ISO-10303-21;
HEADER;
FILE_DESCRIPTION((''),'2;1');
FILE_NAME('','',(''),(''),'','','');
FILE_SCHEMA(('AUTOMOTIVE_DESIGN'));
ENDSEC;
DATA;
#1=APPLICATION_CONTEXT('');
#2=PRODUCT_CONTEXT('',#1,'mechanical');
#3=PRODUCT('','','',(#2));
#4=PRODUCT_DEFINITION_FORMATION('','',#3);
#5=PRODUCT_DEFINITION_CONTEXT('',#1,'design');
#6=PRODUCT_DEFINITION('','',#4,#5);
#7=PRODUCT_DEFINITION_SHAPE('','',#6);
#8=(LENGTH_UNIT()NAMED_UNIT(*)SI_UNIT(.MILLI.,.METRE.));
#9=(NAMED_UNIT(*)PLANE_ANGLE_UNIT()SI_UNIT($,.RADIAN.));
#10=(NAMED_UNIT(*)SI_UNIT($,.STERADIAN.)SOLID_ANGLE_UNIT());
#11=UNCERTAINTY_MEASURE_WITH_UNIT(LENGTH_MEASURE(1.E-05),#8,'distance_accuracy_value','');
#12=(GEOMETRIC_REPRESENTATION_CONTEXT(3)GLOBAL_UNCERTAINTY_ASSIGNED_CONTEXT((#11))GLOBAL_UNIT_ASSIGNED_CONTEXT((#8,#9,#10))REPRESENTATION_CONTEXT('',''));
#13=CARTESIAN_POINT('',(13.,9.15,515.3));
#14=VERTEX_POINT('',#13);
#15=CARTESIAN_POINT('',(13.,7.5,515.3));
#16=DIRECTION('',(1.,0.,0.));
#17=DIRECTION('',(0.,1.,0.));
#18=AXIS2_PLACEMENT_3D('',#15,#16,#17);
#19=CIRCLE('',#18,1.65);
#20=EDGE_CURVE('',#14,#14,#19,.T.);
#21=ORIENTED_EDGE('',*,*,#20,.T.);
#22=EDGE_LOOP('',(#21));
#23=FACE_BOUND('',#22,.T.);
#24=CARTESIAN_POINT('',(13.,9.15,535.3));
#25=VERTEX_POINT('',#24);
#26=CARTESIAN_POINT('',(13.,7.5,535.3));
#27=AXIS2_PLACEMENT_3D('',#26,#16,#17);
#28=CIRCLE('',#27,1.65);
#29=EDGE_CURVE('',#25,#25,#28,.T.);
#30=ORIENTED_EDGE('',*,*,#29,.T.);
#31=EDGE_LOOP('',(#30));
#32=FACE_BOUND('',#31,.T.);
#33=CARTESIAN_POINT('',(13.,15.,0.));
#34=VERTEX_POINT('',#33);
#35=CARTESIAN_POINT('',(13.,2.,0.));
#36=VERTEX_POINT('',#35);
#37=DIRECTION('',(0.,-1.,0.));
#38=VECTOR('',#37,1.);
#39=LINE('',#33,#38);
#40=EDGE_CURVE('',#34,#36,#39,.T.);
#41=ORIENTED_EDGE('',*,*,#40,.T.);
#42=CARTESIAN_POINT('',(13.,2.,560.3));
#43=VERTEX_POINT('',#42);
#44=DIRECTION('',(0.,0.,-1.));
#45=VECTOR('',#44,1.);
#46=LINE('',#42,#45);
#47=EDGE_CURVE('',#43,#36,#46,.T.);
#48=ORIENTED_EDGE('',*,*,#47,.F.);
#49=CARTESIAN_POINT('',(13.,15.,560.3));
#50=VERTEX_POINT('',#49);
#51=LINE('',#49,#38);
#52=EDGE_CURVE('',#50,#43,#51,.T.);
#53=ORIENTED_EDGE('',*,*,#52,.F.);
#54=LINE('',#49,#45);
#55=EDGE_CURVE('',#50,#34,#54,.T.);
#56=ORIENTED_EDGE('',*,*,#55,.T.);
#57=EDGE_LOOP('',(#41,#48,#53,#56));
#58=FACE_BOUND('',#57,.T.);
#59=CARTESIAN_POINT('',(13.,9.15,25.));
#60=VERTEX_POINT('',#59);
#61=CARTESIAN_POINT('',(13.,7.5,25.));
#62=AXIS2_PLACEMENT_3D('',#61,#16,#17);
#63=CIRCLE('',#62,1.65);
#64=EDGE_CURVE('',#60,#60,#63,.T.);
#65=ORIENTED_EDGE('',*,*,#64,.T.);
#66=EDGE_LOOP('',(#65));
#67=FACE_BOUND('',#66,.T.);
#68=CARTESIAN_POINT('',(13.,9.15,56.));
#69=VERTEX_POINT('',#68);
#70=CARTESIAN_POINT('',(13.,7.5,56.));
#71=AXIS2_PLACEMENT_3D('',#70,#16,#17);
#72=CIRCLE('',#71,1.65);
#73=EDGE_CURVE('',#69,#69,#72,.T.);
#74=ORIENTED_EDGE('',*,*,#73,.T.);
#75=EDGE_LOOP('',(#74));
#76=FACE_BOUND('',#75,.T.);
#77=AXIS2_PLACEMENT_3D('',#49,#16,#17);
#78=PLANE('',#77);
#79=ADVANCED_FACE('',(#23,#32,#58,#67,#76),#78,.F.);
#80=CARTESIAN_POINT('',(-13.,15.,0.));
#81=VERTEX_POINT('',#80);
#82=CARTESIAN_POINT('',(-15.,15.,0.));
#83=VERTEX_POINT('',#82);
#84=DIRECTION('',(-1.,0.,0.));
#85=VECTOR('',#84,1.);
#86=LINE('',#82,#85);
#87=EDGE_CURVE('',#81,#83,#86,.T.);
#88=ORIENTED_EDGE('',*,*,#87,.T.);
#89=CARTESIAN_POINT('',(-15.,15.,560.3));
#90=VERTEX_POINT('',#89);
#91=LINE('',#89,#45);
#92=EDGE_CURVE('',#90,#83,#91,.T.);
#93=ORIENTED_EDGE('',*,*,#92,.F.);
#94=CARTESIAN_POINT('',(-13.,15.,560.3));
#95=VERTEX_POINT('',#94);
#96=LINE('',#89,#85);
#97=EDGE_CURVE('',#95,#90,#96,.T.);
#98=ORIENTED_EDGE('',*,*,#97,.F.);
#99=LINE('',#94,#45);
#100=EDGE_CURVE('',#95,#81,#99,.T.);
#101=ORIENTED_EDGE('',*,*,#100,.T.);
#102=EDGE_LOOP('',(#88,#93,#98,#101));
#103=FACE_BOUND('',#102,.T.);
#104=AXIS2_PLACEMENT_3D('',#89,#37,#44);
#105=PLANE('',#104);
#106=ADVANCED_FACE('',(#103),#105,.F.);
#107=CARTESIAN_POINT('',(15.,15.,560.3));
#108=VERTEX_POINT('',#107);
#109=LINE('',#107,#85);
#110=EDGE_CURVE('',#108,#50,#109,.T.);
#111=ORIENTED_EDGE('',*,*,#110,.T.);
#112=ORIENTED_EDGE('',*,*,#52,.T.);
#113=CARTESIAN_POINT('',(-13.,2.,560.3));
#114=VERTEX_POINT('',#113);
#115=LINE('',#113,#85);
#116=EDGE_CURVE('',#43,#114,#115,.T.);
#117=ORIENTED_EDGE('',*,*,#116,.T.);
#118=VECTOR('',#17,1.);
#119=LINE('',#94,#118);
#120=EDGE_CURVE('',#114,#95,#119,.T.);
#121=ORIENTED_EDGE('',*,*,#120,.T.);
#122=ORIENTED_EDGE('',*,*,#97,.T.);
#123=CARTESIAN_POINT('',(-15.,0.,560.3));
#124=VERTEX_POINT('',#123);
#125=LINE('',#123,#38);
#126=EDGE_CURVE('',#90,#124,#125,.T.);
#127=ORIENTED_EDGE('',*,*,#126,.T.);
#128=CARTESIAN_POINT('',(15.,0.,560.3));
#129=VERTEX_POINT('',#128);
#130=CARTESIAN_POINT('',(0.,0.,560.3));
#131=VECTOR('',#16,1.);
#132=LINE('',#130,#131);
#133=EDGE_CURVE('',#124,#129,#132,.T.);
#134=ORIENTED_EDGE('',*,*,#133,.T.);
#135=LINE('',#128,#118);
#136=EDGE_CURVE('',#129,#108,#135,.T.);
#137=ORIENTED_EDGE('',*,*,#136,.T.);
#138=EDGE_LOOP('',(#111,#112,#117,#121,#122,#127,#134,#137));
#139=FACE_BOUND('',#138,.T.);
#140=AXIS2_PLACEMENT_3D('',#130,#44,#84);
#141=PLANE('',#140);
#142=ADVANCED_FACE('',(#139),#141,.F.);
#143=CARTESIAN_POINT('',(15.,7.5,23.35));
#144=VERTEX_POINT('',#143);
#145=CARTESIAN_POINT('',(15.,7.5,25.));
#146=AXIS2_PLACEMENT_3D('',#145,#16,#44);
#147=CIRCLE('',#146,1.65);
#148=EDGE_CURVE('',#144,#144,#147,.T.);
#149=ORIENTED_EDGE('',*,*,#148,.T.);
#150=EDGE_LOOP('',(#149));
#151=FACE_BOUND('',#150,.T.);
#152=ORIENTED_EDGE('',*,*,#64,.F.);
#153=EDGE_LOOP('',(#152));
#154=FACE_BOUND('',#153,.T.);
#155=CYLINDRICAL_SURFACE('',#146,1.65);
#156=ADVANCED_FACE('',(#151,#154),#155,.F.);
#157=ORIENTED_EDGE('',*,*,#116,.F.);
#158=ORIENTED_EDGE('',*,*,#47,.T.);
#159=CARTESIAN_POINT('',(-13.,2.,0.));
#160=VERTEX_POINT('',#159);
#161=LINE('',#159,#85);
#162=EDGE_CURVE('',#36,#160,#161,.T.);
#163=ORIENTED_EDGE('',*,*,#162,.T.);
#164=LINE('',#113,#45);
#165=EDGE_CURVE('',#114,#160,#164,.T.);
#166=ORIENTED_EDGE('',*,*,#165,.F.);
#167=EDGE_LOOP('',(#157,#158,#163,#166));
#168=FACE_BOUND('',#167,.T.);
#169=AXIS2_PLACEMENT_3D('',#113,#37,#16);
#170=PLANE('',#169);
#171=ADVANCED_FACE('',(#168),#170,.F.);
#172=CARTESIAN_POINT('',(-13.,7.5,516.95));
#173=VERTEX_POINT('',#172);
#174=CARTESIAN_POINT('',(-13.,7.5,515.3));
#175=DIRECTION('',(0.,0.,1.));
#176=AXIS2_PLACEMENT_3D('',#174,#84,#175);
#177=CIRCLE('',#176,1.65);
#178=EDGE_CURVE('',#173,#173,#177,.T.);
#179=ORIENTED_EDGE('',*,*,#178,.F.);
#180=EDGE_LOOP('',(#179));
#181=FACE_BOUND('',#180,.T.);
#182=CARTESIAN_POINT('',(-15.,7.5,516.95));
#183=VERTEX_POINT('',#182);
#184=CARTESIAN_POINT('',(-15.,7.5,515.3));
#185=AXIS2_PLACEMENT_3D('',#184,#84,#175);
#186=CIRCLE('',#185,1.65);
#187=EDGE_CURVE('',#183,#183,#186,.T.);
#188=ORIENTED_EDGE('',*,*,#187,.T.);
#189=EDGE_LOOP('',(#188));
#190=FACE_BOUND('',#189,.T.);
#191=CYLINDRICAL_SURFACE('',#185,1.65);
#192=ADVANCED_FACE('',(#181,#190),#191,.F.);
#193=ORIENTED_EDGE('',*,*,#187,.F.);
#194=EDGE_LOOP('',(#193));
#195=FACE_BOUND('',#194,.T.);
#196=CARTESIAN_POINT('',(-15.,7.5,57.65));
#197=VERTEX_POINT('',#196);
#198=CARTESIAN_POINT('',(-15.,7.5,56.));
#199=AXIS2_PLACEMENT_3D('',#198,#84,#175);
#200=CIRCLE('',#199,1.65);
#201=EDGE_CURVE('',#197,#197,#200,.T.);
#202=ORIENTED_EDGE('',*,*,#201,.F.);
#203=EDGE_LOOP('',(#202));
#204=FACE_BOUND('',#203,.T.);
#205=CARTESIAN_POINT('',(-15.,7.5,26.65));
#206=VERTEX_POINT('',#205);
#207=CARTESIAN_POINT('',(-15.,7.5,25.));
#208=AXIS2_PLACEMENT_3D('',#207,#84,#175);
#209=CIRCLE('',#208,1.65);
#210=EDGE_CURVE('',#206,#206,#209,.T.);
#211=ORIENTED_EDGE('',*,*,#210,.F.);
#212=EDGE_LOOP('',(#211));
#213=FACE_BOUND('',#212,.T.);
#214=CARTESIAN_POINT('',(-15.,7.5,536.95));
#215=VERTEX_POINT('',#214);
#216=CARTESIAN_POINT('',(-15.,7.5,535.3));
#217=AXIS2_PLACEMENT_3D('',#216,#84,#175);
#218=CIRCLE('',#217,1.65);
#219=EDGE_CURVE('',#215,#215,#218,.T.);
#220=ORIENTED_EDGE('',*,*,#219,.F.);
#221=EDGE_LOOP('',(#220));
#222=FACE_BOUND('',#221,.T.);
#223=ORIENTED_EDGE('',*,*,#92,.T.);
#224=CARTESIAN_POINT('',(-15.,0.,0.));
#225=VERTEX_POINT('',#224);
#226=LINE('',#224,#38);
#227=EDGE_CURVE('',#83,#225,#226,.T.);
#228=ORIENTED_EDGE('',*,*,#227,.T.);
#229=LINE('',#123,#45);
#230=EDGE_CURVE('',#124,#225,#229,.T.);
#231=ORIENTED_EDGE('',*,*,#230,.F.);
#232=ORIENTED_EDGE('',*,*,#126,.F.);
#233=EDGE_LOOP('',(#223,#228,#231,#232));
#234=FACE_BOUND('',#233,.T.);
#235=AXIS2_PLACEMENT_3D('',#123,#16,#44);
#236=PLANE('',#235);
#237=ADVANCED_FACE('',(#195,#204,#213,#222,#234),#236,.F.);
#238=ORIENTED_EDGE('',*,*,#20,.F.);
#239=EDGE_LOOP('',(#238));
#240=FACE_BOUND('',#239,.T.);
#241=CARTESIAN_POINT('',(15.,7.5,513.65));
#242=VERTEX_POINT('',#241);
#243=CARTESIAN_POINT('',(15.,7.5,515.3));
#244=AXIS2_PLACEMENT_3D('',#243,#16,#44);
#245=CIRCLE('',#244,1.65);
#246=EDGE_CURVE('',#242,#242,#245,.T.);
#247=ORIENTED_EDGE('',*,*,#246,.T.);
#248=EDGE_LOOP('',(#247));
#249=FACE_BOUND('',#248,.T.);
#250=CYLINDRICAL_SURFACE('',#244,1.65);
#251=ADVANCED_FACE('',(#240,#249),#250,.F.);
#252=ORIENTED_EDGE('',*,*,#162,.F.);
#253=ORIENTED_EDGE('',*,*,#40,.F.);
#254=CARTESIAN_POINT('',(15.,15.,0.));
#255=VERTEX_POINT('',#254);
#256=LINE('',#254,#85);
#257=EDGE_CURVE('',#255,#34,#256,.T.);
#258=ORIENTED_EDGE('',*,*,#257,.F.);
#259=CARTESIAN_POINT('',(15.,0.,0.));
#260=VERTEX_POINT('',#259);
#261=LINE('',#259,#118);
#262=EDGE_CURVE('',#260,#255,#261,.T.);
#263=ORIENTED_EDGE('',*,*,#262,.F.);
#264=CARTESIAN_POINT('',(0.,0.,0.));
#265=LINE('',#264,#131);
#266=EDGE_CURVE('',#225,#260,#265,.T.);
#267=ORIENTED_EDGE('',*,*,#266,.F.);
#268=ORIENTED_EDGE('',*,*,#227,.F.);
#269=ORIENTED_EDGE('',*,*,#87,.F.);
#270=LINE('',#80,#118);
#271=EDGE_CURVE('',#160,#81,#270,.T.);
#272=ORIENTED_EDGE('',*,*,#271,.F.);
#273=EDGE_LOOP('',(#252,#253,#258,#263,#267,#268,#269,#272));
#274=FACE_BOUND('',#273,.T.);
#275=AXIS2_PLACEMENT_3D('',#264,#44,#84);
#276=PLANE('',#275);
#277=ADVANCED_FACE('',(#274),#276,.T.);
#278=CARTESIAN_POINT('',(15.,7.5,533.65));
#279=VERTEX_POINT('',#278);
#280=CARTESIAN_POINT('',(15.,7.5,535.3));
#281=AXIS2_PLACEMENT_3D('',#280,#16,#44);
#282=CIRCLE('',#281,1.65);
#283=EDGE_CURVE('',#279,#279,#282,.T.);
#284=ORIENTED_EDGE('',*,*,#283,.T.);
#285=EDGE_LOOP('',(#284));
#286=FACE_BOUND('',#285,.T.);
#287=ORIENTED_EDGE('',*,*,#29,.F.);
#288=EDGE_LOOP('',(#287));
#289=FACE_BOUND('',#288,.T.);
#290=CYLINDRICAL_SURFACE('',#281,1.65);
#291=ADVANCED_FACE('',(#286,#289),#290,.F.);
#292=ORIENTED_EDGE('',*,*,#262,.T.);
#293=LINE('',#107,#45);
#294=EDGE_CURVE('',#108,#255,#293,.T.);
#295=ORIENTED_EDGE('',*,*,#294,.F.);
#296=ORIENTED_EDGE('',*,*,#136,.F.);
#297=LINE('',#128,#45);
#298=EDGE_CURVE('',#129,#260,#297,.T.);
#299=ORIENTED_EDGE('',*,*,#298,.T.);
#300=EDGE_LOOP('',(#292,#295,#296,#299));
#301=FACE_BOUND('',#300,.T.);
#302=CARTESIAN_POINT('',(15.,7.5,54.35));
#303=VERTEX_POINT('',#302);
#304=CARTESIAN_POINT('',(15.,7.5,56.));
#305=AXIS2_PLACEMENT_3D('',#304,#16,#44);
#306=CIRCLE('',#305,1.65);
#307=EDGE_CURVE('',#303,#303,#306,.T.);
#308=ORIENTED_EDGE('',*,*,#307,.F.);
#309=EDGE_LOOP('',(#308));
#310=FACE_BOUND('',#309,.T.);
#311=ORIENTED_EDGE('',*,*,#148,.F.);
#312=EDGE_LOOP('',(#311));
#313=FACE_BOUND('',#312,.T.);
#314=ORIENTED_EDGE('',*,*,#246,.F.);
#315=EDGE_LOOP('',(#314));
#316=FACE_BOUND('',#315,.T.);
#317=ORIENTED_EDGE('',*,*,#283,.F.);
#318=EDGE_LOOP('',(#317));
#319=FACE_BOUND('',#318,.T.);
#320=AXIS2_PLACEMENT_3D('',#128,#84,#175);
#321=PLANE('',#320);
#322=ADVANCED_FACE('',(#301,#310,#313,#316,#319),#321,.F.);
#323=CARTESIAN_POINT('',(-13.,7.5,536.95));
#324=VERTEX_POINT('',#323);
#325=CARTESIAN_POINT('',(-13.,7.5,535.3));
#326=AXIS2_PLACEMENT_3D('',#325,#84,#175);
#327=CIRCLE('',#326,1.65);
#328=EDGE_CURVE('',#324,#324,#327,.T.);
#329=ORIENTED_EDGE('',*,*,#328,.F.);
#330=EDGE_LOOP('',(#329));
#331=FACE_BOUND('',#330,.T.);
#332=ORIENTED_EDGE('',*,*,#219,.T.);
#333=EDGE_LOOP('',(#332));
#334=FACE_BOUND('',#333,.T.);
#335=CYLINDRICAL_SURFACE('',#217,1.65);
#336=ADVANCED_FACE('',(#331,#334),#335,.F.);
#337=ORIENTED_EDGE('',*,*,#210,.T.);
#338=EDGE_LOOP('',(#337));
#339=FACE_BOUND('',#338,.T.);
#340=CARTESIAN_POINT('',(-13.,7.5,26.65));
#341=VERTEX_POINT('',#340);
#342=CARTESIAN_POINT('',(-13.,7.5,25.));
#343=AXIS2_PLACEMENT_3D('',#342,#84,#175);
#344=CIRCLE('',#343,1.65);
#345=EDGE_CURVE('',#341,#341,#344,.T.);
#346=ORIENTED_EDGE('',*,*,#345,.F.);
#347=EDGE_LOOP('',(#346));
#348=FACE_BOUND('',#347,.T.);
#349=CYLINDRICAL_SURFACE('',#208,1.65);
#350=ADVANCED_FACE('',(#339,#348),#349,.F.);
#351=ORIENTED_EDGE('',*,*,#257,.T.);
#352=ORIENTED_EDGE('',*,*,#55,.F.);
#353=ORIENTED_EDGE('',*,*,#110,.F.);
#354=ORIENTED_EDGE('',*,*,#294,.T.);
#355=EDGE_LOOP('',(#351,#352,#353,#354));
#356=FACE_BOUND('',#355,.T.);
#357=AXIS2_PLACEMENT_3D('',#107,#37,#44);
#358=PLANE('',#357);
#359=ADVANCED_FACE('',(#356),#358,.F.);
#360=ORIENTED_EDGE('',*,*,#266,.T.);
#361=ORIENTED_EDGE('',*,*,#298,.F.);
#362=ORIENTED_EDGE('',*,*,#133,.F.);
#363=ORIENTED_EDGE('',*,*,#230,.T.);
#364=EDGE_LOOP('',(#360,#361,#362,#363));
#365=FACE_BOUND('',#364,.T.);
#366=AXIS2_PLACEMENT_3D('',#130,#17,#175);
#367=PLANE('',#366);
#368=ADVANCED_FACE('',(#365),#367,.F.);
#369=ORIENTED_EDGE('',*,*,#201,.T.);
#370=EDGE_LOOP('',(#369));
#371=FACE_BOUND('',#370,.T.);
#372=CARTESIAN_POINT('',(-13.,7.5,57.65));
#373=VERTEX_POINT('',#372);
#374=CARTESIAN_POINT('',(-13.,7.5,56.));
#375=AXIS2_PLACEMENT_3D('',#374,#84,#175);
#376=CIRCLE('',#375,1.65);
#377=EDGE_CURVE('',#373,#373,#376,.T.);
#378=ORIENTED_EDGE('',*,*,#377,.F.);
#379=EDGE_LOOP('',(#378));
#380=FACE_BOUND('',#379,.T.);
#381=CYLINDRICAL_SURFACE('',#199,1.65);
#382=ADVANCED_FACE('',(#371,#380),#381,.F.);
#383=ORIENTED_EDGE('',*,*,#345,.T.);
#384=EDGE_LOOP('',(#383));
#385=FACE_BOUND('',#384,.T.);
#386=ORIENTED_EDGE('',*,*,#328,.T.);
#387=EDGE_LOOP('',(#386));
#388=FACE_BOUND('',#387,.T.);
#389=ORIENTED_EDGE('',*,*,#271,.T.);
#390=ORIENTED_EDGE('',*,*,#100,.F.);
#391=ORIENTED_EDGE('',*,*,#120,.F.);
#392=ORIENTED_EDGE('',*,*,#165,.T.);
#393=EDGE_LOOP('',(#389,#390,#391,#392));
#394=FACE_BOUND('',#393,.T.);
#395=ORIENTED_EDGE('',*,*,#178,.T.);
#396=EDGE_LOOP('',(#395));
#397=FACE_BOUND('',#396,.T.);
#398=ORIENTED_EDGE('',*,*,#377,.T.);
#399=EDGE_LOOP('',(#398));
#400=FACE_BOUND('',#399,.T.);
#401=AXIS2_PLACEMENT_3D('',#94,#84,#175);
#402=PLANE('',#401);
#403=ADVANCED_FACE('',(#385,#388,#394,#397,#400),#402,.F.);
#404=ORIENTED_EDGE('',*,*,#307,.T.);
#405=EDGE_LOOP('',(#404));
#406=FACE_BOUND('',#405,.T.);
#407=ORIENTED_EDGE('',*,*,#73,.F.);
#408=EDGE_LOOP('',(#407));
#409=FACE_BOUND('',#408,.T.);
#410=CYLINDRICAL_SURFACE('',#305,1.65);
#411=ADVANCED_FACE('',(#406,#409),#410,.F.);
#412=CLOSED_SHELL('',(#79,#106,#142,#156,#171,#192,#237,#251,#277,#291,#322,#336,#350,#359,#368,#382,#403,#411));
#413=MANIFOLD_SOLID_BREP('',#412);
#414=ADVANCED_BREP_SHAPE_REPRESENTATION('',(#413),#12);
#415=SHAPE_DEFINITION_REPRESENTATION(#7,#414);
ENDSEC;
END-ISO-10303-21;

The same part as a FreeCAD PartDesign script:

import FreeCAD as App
import Part
import Sketcher

V = App.Vector
Q = App.Units.Quantity

doc = App.newDocument("Part")
params = doc.addObject("Spreadsheet::Sheet", "Params")
for row, (alias, value) in enumerate([
    ("sketch1_width", "2 mm"),
    ("sketch1_width2", "26 mm"),
    ("sketch1_height", "15 mm"),
    ("sketch1_height2", "13 mm"),
    ("pad1_length", "560.3 mm"),
    ("sketch2_diameter", "3.3 mm"),
    ("hole_diameter", "3.3 mm"),
    ("hole_depth", "11.5 mm"),
    ("sketch3_diameter", "3.3 mm"),
    ("hole2_diameter", "3.3 mm"),
    ("hole2_depth", "11.5 mm"),
    ("sketch4_diameter", "3.3 mm"),
    ("hole3_diameter", "3.3 mm"),
    ("hole3_depth", "11.5 mm"),
], start=1):
    params.set(f"A{row}", alias)
    params.set(f"B{row}", "=" + value)
    params.setAlias(f"B{row}", alias)

body = doc.addObject("PartDesign::Body", "Body")

sketch1 = body.newObject("Sketcher::SketchObject", "Sketch")
sketch1.AttachmentSupport = (doc.getObject("XY_Plane"), [""])
sketch1.MapMode = "FlatFace"
sketch1.addGeometry([
    Part.LineSegment(V(15, 0, 0), V(15, 15, 0)),
    Part.LineSegment(V(15, 15, 0), V(13, 15, 0)),
    Part.LineSegment(V(13, 15, 0), V(13, 2, 0)),
    Part.LineSegment(V(13, 2, 0), V(-13, 2, 0)),
    Part.LineSegment(V(-13, 2, 0), V(-13, 15, 0)),
    Part.LineSegment(V(-13, 15, 0), V(-15, 15, 0)),
    Part.LineSegment(V(-15, 15, 0), V(-15, 0, 0)),
    Part.LineSegment(V(-15, 0, 0), V(15, 0, 0)),
], False)
sketch1.addConstraint([
    Sketcher.Constraint("Coincident", 0, 2, 1, 1),
    Sketcher.Constraint("Coincident", 1, 2, 2, 1),
    Sketcher.Constraint("Coincident", 2, 2, 3, 1),
    Sketcher.Constraint("Coincident", 3, 2, 4, 1),
    Sketcher.Constraint("Coincident", 4, 2, 5, 1),
    Sketcher.Constraint("Coincident", 5, 2, 6, 1),
    Sketcher.Constraint("Coincident", 6, 2, 7, 1),
    Sketcher.Constraint("Coincident", 7, 2, 0, 1),
    Sketcher.Constraint("Vertical", 0),
    Sketcher.Constraint("Horizontal", 1),
    Sketcher.Constraint("Vertical", 2),
    Sketcher.Constraint("Horizontal", 3),
    Sketcher.Constraint("Vertical", 4),
    Sketcher.Constraint("Horizontal", 5),
    Sketcher.Constraint("Vertical", 6),
    Sketcher.Constraint("Horizontal", 7),
    Sketcher.Constraint("Symmetric", 6, 2, 7, 2, -1, 1),
    Sketcher.Constraint("Symmetric", 1, 2, 4, 2, -2),
    Sketcher.Constraint("DistanceX", 1, 2, 1, 1, Q("2 mm")),
    Sketcher.Constraint("DistanceX", 3, 2, 3, 1, Q("26 mm")),
    Sketcher.Constraint("DistanceY", 0, 1, 0, 2, Q("15 mm")),
    Sketcher.Constraint("DistanceY", 2, 2, 2, 1, Q("13 mm")),
])
sketch1.setExpression("Constraints[18]", "Params.sketch1_width")
sketch1.setExpression("Constraints[19]", "Params.sketch1_width2")
sketch1.setExpression("Constraints[20]", "Params.sketch1_height")
sketch1.setExpression("Constraints[21]", "Params.sketch1_height2")
pad1 = body.newObject("PartDesign::Pad", "Pad")
pad1.Profile = sketch1
pad1.setExpression("Length", "Params.pad1_length")

sketch2 = body.newObject("Sketcher::SketchObject", "Sketch001")
sketch2.AttachmentSupport = (doc.getObject("YZ_Plane"), [""])
sketch2.MapMode = "FlatFace"
sketch2.AttachmentOffset = App.Placement(V(0, 0, 15), App.Rotation())
sketch2.addGeometry([
    Part.Circle(V(7.5, 56, 0), V(0, 0, 1), 1.65),
    Part.Circle(V(7.5, 25, 0), V(0, 0, 1), 1.65),
], False)
sketch2.addConstraint([
    Sketcher.Constraint("Equal", 0, 1),
    Sketcher.Constraint("Vertical", 0, 3, 1, 3),
    Sketcher.Constraint("Diameter", 0, Q("3.3 mm")),
    Sketcher.Constraint("DistanceY", -1, 1, 0, 3, Q("56 mm")),
    Sketcher.Constraint("DistanceY", -1, 1, 1, 3, Q("25 mm")),
    Sketcher.Constraint("DistanceX", -1, 1, 0, 3, Q("7.5 mm")),
])
sketch2.setExpression("Constraints[2]", "Params.sketch2_diameter")
doc.recompute()
hole = body.newObject("PartDesign::Hole", "Hole")
hole.Profile = sketch2
hole.ThreadType = "None"
hole.setExpression("Diameter", "Params.hole_diameter")
hole.DepthType = "Dimension"
hole.setExpression("Depth", "Params.hole_depth")
hole.DrillPoint = "Angled"
hole.DrillPointAngle = 118

sketch3 = body.newObject("Sketcher::SketchObject", "Sketch002")
sketch3.AttachmentSupport = (doc.getObject("YZ_Plane"), [""])
sketch3.MapMode = "FlatFace"
sketch3.AttachmentOffset = App.Placement(V(0, 0, 15), App.Rotation())
sketch3.addGeometry([
    Part.Circle(V(7.5, 535.3, 0), V(0, 0, 1), 1.65),
    Part.Circle(V(7.5, 515.3, 0), V(0, 0, 1), 1.65),
], False)
sketch3.addConstraint([
    Sketcher.Constraint("Equal", 0, 1),
    Sketcher.Constraint("Vertical", 0, 3, 1, 3),
    Sketcher.Constraint("Diameter", 0, Q("3.3 mm")),
    Sketcher.Constraint("DistanceY", 1, 3, 0, 3, Q("20 mm")),
    Sketcher.Constraint("DistanceX", -1, 1, 0, 3, Q("7.5 mm")),
    Sketcher.Constraint("DistanceY", -1, 1, 0, 3, Q("535.3 mm")),
])
sketch3.setExpression("Constraints[2]", "Params.sketch3_diameter")
doc.recompute()
hole2 = body.newObject("PartDesign::Hole", "Hole001")
hole2.Profile = sketch3
hole2.ThreadType = "None"
hole2.setExpression("Diameter", "Params.hole2_diameter")
hole2.DepthType = "Dimension"
hole2.setExpression("Depth", "Params.hole2_depth")
hole2.DrillPoint = "Angled"
hole2.DrillPointAngle = 118

sketch4 = body.newObject("Sketcher::SketchObject", "Sketch003")
sketch4.AttachmentSupport = (doc.getObject("YZ_Plane"), [""])
sketch4.MapMode = "FlatFace"
sketch4.AttachmentOffset = App.Placement(V(0, 0, -15), App.Rotation())
sketch4.addGeometry([
    Part.Circle(V(7.5, 56, 0), V(0, 0, 1), 1.65),
    Part.Circle(V(7.5, 25, 0), V(0, 0, 1), 1.65),
    Part.Circle(V(7.5, 515.3, 0), V(0, 0, 1), 1.65),
    Part.Circle(V(7.5, 535.3, 0), V(0, 0, 1), 1.65),
], False)
sketch4.addConstraint([
    Sketcher.Constraint("Equal", 0, 1),
    Sketcher.Constraint("Equal", 1, 2),
    Sketcher.Constraint("Equal", 2, 3),
    Sketcher.Constraint("Vertical", 0, 3, 1, 3),
    Sketcher.Constraint("Vertical", 1, 3, 2, 3),
    Sketcher.Constraint("Vertical", 2, 3, 3, 3),
    Sketcher.Constraint("Diameter", 0, Q("3.3 mm")),
    Sketcher.Constraint("DistanceY", -1, 1, 0, 3, Q("56 mm")),
    Sketcher.Constraint("DistanceY", -1, 1, 1, 3, Q("25 mm")),
    Sketcher.Constraint("DistanceY", 2, 3, 3, 3, Q("20 mm")),
    Sketcher.Constraint("DistanceX", -1, 1, 0, 3, Q("7.5 mm")),
    Sketcher.Constraint("DistanceY", -1, 1, 2, 3, Q("515.3 mm")),
])
sketch4.setExpression("Constraints[6]", "Params.sketch4_diameter")
doc.recompute()
hole3 = body.newObject("PartDesign::Hole", "Hole002")
hole3.Profile = sketch4
hole3.ThreadType = "None"
hole3.setExpression("Diameter", "Params.hole3_diameter")
hole3.DepthType = "Dimension"
hole3.setExpression("Depth", "Params.hole3_depth")
hole3.DrillPoint = "Angled"
hole3.DrillPointAngle = 118
hole3.Reversed = True

doc.recompute()
